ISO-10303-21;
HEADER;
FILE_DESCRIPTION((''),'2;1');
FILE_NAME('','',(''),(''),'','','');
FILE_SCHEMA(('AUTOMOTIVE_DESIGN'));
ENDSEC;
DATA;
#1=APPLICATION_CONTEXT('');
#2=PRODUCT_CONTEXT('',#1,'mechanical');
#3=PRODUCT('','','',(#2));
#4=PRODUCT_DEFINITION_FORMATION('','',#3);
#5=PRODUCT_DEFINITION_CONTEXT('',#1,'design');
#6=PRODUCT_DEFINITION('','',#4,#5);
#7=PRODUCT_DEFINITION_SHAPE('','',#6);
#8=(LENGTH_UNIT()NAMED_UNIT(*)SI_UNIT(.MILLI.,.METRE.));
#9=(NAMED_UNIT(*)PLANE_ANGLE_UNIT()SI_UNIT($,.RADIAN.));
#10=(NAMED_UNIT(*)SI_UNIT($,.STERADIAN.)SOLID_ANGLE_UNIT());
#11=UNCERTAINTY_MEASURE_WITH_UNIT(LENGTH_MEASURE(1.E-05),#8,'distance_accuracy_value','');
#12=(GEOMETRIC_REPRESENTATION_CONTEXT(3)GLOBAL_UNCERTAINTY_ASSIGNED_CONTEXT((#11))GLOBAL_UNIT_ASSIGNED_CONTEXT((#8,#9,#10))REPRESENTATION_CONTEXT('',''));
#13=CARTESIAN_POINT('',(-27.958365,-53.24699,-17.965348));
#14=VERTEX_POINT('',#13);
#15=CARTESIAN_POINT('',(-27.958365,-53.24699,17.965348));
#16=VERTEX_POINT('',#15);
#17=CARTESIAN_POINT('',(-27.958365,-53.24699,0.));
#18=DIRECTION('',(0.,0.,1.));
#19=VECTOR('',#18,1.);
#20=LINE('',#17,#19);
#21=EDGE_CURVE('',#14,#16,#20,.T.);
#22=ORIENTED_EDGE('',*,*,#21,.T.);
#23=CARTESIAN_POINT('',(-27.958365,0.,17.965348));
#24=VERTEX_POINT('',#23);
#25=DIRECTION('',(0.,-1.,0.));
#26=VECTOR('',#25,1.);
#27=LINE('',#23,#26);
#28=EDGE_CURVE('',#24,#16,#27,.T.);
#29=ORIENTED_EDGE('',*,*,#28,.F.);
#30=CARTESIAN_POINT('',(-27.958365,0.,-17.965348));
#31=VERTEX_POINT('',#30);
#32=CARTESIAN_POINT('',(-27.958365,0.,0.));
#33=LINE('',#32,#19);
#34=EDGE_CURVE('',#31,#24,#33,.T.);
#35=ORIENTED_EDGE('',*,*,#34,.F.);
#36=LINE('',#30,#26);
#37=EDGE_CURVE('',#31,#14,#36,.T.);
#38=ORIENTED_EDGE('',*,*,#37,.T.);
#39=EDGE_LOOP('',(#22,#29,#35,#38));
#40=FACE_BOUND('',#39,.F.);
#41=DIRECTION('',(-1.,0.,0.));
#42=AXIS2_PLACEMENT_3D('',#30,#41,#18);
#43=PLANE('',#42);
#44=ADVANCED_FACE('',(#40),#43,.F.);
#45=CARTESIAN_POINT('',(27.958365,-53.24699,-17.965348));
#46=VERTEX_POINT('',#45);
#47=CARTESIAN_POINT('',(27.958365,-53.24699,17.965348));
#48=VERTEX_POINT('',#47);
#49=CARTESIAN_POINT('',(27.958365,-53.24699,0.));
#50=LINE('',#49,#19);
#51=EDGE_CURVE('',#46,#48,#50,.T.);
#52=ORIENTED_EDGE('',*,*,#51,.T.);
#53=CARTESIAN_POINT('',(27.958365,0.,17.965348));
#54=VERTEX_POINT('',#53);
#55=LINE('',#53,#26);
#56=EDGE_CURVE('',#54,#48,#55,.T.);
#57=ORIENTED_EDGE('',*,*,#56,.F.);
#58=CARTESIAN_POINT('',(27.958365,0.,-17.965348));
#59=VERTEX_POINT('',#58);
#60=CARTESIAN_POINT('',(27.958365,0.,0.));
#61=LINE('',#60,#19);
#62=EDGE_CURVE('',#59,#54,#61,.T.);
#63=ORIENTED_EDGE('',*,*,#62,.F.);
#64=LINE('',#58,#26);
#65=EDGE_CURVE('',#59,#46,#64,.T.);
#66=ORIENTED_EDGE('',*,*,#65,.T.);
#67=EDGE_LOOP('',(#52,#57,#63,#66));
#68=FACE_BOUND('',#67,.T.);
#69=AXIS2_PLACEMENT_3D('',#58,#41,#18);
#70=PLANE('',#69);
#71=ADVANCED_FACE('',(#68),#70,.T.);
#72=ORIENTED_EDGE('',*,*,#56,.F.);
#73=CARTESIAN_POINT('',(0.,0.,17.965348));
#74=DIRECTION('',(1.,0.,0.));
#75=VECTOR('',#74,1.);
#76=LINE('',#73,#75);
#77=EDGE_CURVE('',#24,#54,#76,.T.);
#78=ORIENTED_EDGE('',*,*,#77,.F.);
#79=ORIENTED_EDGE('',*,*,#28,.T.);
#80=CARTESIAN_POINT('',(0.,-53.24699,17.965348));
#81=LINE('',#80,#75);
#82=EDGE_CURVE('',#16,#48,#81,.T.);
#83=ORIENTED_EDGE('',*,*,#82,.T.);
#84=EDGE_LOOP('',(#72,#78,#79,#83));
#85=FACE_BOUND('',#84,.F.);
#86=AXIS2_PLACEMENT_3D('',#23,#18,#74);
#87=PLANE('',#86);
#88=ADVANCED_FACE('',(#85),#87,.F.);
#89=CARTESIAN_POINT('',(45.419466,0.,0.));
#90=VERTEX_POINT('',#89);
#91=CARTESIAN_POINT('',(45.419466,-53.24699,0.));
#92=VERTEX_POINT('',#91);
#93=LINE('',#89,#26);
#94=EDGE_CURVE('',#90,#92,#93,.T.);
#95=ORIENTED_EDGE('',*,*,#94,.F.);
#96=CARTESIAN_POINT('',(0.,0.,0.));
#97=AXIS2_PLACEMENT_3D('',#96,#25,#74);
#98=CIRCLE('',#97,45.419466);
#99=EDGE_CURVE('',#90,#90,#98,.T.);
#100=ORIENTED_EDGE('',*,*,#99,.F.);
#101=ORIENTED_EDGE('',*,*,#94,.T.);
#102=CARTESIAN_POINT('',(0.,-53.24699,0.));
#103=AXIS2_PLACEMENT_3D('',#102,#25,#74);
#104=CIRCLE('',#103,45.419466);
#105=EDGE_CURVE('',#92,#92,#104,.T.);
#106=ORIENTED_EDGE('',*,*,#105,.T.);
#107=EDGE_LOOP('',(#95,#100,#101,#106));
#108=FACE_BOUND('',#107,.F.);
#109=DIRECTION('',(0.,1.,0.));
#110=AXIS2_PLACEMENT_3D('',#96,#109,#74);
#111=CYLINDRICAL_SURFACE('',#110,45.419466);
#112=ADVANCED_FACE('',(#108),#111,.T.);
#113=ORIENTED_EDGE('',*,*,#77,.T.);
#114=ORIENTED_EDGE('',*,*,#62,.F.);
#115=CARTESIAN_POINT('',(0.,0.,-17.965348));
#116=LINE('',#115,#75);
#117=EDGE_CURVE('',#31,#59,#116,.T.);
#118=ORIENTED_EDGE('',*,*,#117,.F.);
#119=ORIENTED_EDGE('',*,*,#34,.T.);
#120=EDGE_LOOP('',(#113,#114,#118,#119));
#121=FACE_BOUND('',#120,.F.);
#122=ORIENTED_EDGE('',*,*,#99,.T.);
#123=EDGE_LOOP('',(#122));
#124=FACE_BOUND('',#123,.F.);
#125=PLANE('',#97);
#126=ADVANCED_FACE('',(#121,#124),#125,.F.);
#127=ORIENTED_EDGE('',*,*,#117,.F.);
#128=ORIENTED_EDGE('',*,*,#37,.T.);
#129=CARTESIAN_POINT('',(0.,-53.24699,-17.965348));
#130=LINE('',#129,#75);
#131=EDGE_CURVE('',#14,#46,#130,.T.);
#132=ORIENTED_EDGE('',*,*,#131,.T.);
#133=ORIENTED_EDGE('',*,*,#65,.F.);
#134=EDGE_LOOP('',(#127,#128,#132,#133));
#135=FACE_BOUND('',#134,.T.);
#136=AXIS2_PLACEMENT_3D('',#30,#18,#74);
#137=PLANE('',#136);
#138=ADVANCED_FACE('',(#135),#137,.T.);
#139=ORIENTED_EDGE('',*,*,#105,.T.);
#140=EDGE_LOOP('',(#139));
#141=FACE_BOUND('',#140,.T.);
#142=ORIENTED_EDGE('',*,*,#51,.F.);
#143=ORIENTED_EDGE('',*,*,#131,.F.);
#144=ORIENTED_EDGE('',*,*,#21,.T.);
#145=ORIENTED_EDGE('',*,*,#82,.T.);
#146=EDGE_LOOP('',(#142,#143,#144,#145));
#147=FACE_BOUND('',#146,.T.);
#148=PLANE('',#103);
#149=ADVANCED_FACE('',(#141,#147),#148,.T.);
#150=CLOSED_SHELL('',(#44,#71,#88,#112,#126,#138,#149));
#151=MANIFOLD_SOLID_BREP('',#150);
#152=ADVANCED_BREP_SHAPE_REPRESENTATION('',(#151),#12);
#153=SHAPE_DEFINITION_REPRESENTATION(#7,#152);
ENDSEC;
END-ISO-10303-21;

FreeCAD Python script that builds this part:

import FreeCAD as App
import Part
import Sketcher


def add_polygon(sketch, points):
    """Adds a closed chain of lines whose ends are joined by coincident constraints."""
    first, n = sketch.GeometryCount, len(points)
    for a, b in zip(points, points[1:] + points[:1]):
        sketch.addGeometry(Part.LineSegment(App.Vector(*a, 0), App.Vector(*b, 0)), False)
    for i in range(n):
        sketch.addConstraint(Sketcher.Constraint("Coincident", first + i, 2, first + (i + 1) % n, 1))

doc = App.newDocument("Part")
body = doc.addObject("PartDesign::Body", "Body")

# Sketch on XZ plane
sketch1 = body.newObject("Sketcher::SketchObject", "Sketch")
sketch1.AttachmentSupport = (doc.getObject("XZ_Plane"), [""])
sketch1.MapMode = "FlatFace"
sketch1.addGeometry(Part.Circle(App.Vector(0, 0, 0), App.Vector(0, 0, 1), 45.419466), False)  # 0
add_polygon(sketch1, [(27.958365, -17.965348), (-27.958365, -17.965348), (-27.958365, 17.965348), (27.958365, 17.965348)])  # lines 1-4
sketch1.addConstraint([
    Sketcher.Constraint("Horizontal", 1),
    Sketcher.Constraint("Vertical", 2),
    Sketcher.Constraint("Horizontal", 3),
    Sketcher.Constraint("Vertical", 4),
    Sketcher.Constraint("Coincident", 0, 3, -1, 1),
    Sketcher.Constraint("Symmetric", 1, 2, 3, 2, -1, 1),
    Sketcher.Constraint("Diameter", 0, 90.838932),
    Sketcher.Constraint("DistanceX", 1, 2, 1, 1, 55.91673),
    Sketcher.Constraint("DistanceY", 2, 1, 2, 2, 35.930696),
])
pad1 = body.newObject("PartDesign::Pad", "Pad")
pad1.Profile = sketch1
pad1.Length = 53.24699

doc.recompute()
